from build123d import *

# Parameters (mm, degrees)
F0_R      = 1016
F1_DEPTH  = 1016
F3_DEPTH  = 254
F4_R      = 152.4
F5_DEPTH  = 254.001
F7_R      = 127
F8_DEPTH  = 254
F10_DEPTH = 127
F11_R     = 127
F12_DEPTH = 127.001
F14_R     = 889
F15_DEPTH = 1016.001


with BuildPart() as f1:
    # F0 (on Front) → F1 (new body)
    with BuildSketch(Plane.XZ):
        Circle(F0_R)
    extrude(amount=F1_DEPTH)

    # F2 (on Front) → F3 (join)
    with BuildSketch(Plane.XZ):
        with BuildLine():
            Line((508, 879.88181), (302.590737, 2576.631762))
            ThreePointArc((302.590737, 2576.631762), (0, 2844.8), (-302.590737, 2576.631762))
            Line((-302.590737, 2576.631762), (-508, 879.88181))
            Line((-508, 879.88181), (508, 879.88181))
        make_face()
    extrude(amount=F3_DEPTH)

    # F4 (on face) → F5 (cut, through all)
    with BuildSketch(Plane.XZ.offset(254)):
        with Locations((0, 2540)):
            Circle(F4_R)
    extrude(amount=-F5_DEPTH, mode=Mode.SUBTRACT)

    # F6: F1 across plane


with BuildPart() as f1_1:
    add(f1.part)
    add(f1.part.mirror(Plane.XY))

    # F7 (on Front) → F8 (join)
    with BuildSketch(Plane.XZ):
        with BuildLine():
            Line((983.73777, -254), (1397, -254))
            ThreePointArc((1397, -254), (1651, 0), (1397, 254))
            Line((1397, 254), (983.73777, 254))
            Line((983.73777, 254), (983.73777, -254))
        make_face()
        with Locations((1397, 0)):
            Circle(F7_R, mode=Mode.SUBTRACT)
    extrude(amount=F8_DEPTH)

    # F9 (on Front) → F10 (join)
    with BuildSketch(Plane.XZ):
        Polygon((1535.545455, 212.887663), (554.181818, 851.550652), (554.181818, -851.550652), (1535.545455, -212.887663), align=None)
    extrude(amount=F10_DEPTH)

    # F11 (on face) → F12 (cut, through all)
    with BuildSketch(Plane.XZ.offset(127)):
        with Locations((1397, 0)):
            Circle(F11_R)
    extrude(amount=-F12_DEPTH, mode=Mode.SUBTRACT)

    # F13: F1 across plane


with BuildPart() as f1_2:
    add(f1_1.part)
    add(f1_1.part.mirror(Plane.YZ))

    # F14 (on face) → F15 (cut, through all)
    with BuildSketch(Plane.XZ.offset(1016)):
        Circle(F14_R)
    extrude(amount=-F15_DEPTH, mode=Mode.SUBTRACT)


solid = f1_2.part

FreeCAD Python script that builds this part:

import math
import FreeCAD as App
import Part
import Sketcher
Q = App.Units.Quantity


def add_polygon(sketch, points):
    """Adds a closed chain of lines whose ends are joined by coincident constraints."""
    first, n = sketch.GeometryCount, len(points)
    for a, b in zip(points, points[1:] + points[:1]):
        sketch.addGeometry(Part.LineSegment(App.Vector(*a, 0), App.Vector(*b, 0)), False)
    for i in range(n):
        sketch.addConstraint(Sketcher.Constraint("Coincident", first + i, 2, first + (i + 1) % n, 1))

doc = App.newDocument("Part")
body = doc.addObject("PartDesign::Body", "Body")

sketch1 = body.newObject("Sketcher::SketchObject", "Sketch")
sketch1.AttachmentSupport = (doc.getObject("XZ_Plane"), [""])
sketch1.MapMode = "FlatFace"
sketch1.addGeometry(Part.Circle(App.Vector(0, 0, 0), App.Vector(0, 0, 1), 1016), False)
sketch1.addConstraint([
    Sketcher.Constraint("Coincident", 0, 3, -1, 1),
    Sketcher.Constraint("Diameter", 0, Q("80 in")),
])
pad1 = body.newObject("PartDesign::Pad", "Pad")
pad1.Profile = sketch1
pad1.Length = Q("40 in")

sketch2 = body.newObject("Sketcher::SketchObject", "Sketch001")
sketch2.AttachmentSupport = (doc.getObject("XZ_Plane"), [""])
sketch2.MapMode = "FlatFace"
sketch2.addGeometry([
    Part.LineSegment(App.Vector(508, 880, 0), App.Vector(303, 2577, 0)),
    Part.ArcOfCircle(Part.Circle(App.Vector(0, 2540, 0), App.Vector(0, 0, 1), 305), math.radians(7), math.radians(173)),
    Part.LineSegment(App.Vector(-303, 2577, 0), App.Vector(-508, 880, 0)),
    Part.LineSegment(App.Vector(-508, 880, 0), App.Vector(508, 880, 0)),
], False)
sketch2.addConstraint([
    Sketcher.Constraint("Tangent", 0, 2, 1, 1),
    Sketcher.Constraint("Tangent", 1, 2, 2, 1),
    Sketcher.Constraint("Coincident", 2, 2, 3, 1),
    Sketcher.Constraint("Coincident", 3, 2, 0, 1),
    Sketcher.Constraint("Horizontal", 3),
    Sketcher.Constraint("PointOnObject", 1, 3, -2),
    Sketcher.Constraint("Equal", 0, 2),
    Sketcher.Constraint("Radius", 1, Q("12 in")),
    Sketcher.Constraint("DistanceX", 3, 1, 3, 2, Q("40 in")),
    Sketcher.Constraint("DistanceY", -1, 1, 1, 3, Q("100 in")),
    Sketcher.Constraint("DistanceY", -1, 1, 0, 2, 2576.631762),
])
pad2 = body.newObject("PartDesign::Pad", "Pad001")
pad2.Profile = sketch2
pad2.Length = Q("10 in")

sketch3 = body.newObject("Sketcher::SketchObject", "Sketch002")
sketch3.AttachmentSupport = (doc.getObject("XZ_Plane"), [""])
sketch3.MapMode = "FlatFace"
sketch3.AttachmentOffset = App.Placement(App.Vector(0, 0, 10 * 25.4), App.Rotation())
sketch3.addGeometry(Part.Circle(App.Vector(0, 2540, 0), App.Vector(0, 0, 1), 152), False)
sketch3.addConstraint([
    Sketcher.Constraint("PointOnObject", 0, 3, -2),
    Sketcher.Constraint("Diameter", 0, Q("12 in")),
    Sketcher.Constraint("DistanceY", -1, 1, 0, 3, Q("100 in")),
])
pocket1 = body.newObject("PartDesign::Pocket", "Pocket")
pocket1.Profile = sketch3
pocket1.Type = "ThroughAll"
body2 = doc.addObject("PartDesign::Body", "Body001")
doc.recompute()

body2.BaseFeature = body
doc.recompute()

mirroring = doc.addObject("Part::Mirroring", "Mirroring")
mirroring.Source = body
mirroring.Base = App.Vector(0, 0, 0)
mirroring.Normal = App.Vector(0, 0, 1)
body3 = doc.addObject("PartDesign::Body", "Body002")
body3.BaseFeature = mirroring
boolean = body2.newObject("PartDesign::Boolean", "Boolean")
boolean.Type = "Fuse"
boolean.addObjects([body3])
doc.recompute()

sketch4 = body2.newObject("Sketcher::SketchObject", "Sketch003")
sketch4.AttachmentSupport = (doc.getObject("XZ_Plane001"), [""])
sketch4.MapMode = "FlatFace"
sketch4.addGeometry([
    Part.LineSegment(App.Vector(984, -254, 0), App.Vector(1397, -254, 0)),
    Part.ArcOfCircle(Part.Circle(App.Vector(1397, 0, 0), App.Vector(0, 0, 1), 254), math.radians(-90), math.radians(90)),
    Part.LineSegment(App.Vector(1397, 254, 0), App.Vector(984, 254, 0)),
    Part.LineSegment(App.Vector(984, 254, 0), App.Vector(984, -254, 0)),
    Part.Circle(App.Vector(1397, 0, 0), App.Vector(0, 0, 1), 127),
], False)
sketch4.addConstraint([
    Sketcher.Constraint("Tangent", 0, 2, 1, 1),
    Sketcher.Constraint("Tangent", 1, 2, 2, 1),
    Sketcher.Constraint("Coincident", 2, 2, 3, 1),
    Sketcher.Constraint("Coincident", 3, 2, 0, 1),
    Sketcher.Constraint("Horizontal", 0),
    Sketcher.Constraint("Horizontal", 2),
    Sketcher.Constraint("Vertical", 3),
    Sketcher.Constraint("Coincident", 4, 3, 1, 3),
    Sketcher.Constraint("PointOnObject", 1, 3, -1),
    Sketcher.Constraint("Diameter", 4, Q("10 in")),
    Sketcher.Constraint("Radius", 1, Q("10 in")),
    Sketcher.Constraint("DistanceX", -1, 1, 1, 3, Q("55 in")),
    Sketcher.Constraint("DistanceX", 0, 1, 0, 2, 413.26223),
])
pad3 = body2.newObject("PartDesign::Pad", "Pad002")
pad3.Profile = sketch4
pad3.Length = Q("10 in")

sketch5 = body2.newObject("Sketcher::SketchObject", "Sketch004")
sketch5.AttachmentSupport = (doc.getObject("XZ_Plane001"), [""])
sketch5.MapMode = "FlatFace"
add_polygon(sketch5, [(1536, 213), (554, 852), (554, -852), (1536, -213)])
sketch5.addConstraint([
    Sketcher.Constraint("Vertical", 1),
    Sketcher.Constraint("Vertical", 3),
    Sketcher.Constraint("Equal", 0, 2),
    Sketcher.Constraint("DistanceY", 1, 2, 1, 1, 1703.101304),
    Sketcher.Constraint("DistanceY", 3, 1, 3, 2, 425.775326),
    Sketcher.Constraint("DistanceX", -1, 1, 0, 2, 554.181818),
    Sketcher.Constraint("DistanceY", -1, 1, 0, 2, 851.550652),
    Sketcher.Constraint("Distance", 0, 1170.882147),
])
pad4 = body2.newObject("PartDesign::Pad", "Pad003")
pad4.Profile = sketch5
pad4.Length = Q("5 in")

sketch6 = body2.newObject("Sketcher::SketchObject", "Sketch005")
sketch6.AttachmentSupport = (doc.getObject("XZ_Plane001"), [""])
sketch6.MapMode = "FlatFace"
sketch6.AttachmentOffset = App.Placement(App.Vector(0, 0, 5 * 25.4), App.Rotation())
sketch6.addGeometry(Part.Circle(App.Vector(1397, 0, 0), App.Vector(0, 0, 1), 127), False)
sketch6.addConstraint([
    Sketcher.Constraint("PointOnObject", 0, 3, -1),
    Sketcher.Constraint("Diameter", 0, Q("10 in")),
    Sketcher.Constraint("DistanceX", -1, 1, 0, 3, Q("55 in")),
])
pocket2 = body2.newObject("PartDesign::Pocket", "Pocket001")
pocket2.Profile = sketch6
pocket2.Type = "ThroughAll"
body4 = doc.addObject("PartDesign::Body", "Body003")
doc.recompute()

body4.BaseFeature = body2
doc.recompute()

mirroring2 = doc.addObject("Part::Mirroring", "Mirroring001")
mirroring2.Source = body2
mirroring2.Base = App.Vector(0, 0, 0)
mirroring2.Normal = App.Vector(1, 0, 0)
body5 = doc.addObject("PartDesign::Body", "Body004")
body5.BaseFeature = mirroring2
boolean2 = body4.newObject("PartDesign::Boolean", "Boolean001")
boolean2.Type = "Fuse"
boolean2.addObjects([body5])
doc.recompute()

sketch7 = body4.newObject("Sketcher::SketchObject", "Sketch006")
sketch7.AttachmentSupport = (doc.getObject("XZ_Plane003"), [""])
sketch7.MapMode = "FlatFace"
sketch7.AttachmentOffset = App.Placement(App.Vector(0, 0, 40 * 25.4), App.Rotation())
sketch7.addGeometry(Part.Circle(App.Vector(0, 0, 0), App.Vector(0, 0, 1), 889), False)
sketch7.addConstraint([
    Sketcher.Constraint("Coincident", 0, 3, -1, 1),
    Sketcher.Constraint("Diameter", 0, Q("70 in")),
])
pocket3 = body4.newObject("PartDesign::Pocket", "Pocket002")
pocket3.Profile = sketch7
pocket3.Type = "ThroughAll"
mirroring.Visibility = False
mirroring2.Visibility = False

doc.recompute()
